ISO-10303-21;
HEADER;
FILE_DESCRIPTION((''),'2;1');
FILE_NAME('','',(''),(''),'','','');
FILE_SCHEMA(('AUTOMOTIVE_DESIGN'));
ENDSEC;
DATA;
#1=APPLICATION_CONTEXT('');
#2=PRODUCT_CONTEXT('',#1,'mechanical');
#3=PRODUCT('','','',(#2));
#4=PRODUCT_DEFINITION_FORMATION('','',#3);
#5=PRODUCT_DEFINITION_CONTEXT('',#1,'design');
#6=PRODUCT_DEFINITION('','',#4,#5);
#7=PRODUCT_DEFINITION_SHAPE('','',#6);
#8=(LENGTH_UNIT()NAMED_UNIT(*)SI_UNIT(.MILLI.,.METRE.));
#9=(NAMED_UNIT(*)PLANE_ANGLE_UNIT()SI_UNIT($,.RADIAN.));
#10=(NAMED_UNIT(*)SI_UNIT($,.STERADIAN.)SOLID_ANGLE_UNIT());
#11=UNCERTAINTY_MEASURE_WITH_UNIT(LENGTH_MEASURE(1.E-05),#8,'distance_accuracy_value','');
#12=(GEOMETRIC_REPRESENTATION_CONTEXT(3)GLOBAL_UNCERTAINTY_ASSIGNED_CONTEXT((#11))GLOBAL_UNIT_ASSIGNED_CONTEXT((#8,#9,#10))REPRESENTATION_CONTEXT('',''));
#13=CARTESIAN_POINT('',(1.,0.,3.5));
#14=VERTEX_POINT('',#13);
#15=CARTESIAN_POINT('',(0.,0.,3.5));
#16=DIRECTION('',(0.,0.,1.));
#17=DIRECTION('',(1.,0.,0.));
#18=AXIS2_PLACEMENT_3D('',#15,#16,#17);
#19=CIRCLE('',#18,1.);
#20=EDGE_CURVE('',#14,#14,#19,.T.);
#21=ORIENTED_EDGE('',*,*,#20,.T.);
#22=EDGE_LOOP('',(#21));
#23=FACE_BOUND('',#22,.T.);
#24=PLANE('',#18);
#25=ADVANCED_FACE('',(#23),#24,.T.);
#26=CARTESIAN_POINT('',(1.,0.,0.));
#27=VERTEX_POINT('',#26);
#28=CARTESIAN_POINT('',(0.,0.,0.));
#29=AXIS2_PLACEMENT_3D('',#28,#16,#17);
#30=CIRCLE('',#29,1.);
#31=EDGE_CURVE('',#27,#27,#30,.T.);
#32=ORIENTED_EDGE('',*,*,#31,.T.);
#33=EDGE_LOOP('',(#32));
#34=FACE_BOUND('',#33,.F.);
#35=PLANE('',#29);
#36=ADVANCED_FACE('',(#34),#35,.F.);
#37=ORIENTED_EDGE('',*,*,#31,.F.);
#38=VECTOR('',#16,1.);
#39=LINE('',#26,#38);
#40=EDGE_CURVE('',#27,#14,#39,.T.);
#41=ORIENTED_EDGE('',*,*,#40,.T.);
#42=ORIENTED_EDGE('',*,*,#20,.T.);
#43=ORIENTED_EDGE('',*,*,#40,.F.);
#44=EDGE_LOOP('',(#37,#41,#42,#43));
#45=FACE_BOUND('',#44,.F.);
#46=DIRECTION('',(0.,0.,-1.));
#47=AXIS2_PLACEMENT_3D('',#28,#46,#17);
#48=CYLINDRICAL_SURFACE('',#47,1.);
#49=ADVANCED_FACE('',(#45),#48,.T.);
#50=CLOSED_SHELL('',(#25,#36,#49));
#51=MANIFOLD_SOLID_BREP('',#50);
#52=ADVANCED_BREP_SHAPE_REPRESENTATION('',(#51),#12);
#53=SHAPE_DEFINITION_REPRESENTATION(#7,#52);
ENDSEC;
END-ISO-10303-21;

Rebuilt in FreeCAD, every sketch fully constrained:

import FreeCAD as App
import Part
import Sketcher
Q = App.Units.Quantity

doc = App.newDocument("Part")
params = doc.addObject("Spreadsheet::Sheet", "Params")
for row, (alias, value) in enumerate([
    ("sketch1_diameter", "2 mm"),
    ("pad1_length", "3.5 mm"),
], start=1):
    params.set(f"A{row}", alias)
    params.set(f"B{row}", "=" + value)
    params.setAlias(f"B{row}", alias)

body = doc.addObject("PartDesign::Body", "Body")

sketch1 = body.newObject("Sketcher::SketchObject", "Sketch")
sketch1.AttachmentSupport = (doc.getObject("XY_Plane"), [""])
sketch1.MapMode = "FlatFace"
sketch1.addGeometry(Part.Circle(App.Vector(0, 0, 0), App.Vector(0, 0, 1), 1), False)
sketch1.addConstraint(Sketcher.Constraint("Coincident", 0, 3, -1, 1))
sketch1.addConstraint(Sketcher.Constraint("Diameter", 0, Q("2 mm")))
sketch1.setExpression("Constraints[1]", "Params.sketch1_diameter")
pad1 = body.newObject("PartDesign::Pad", "Pad")
pad1.Profile = sketch1
pad1.setExpression("Length", "Params.pad1_length")

doc.recompute()
